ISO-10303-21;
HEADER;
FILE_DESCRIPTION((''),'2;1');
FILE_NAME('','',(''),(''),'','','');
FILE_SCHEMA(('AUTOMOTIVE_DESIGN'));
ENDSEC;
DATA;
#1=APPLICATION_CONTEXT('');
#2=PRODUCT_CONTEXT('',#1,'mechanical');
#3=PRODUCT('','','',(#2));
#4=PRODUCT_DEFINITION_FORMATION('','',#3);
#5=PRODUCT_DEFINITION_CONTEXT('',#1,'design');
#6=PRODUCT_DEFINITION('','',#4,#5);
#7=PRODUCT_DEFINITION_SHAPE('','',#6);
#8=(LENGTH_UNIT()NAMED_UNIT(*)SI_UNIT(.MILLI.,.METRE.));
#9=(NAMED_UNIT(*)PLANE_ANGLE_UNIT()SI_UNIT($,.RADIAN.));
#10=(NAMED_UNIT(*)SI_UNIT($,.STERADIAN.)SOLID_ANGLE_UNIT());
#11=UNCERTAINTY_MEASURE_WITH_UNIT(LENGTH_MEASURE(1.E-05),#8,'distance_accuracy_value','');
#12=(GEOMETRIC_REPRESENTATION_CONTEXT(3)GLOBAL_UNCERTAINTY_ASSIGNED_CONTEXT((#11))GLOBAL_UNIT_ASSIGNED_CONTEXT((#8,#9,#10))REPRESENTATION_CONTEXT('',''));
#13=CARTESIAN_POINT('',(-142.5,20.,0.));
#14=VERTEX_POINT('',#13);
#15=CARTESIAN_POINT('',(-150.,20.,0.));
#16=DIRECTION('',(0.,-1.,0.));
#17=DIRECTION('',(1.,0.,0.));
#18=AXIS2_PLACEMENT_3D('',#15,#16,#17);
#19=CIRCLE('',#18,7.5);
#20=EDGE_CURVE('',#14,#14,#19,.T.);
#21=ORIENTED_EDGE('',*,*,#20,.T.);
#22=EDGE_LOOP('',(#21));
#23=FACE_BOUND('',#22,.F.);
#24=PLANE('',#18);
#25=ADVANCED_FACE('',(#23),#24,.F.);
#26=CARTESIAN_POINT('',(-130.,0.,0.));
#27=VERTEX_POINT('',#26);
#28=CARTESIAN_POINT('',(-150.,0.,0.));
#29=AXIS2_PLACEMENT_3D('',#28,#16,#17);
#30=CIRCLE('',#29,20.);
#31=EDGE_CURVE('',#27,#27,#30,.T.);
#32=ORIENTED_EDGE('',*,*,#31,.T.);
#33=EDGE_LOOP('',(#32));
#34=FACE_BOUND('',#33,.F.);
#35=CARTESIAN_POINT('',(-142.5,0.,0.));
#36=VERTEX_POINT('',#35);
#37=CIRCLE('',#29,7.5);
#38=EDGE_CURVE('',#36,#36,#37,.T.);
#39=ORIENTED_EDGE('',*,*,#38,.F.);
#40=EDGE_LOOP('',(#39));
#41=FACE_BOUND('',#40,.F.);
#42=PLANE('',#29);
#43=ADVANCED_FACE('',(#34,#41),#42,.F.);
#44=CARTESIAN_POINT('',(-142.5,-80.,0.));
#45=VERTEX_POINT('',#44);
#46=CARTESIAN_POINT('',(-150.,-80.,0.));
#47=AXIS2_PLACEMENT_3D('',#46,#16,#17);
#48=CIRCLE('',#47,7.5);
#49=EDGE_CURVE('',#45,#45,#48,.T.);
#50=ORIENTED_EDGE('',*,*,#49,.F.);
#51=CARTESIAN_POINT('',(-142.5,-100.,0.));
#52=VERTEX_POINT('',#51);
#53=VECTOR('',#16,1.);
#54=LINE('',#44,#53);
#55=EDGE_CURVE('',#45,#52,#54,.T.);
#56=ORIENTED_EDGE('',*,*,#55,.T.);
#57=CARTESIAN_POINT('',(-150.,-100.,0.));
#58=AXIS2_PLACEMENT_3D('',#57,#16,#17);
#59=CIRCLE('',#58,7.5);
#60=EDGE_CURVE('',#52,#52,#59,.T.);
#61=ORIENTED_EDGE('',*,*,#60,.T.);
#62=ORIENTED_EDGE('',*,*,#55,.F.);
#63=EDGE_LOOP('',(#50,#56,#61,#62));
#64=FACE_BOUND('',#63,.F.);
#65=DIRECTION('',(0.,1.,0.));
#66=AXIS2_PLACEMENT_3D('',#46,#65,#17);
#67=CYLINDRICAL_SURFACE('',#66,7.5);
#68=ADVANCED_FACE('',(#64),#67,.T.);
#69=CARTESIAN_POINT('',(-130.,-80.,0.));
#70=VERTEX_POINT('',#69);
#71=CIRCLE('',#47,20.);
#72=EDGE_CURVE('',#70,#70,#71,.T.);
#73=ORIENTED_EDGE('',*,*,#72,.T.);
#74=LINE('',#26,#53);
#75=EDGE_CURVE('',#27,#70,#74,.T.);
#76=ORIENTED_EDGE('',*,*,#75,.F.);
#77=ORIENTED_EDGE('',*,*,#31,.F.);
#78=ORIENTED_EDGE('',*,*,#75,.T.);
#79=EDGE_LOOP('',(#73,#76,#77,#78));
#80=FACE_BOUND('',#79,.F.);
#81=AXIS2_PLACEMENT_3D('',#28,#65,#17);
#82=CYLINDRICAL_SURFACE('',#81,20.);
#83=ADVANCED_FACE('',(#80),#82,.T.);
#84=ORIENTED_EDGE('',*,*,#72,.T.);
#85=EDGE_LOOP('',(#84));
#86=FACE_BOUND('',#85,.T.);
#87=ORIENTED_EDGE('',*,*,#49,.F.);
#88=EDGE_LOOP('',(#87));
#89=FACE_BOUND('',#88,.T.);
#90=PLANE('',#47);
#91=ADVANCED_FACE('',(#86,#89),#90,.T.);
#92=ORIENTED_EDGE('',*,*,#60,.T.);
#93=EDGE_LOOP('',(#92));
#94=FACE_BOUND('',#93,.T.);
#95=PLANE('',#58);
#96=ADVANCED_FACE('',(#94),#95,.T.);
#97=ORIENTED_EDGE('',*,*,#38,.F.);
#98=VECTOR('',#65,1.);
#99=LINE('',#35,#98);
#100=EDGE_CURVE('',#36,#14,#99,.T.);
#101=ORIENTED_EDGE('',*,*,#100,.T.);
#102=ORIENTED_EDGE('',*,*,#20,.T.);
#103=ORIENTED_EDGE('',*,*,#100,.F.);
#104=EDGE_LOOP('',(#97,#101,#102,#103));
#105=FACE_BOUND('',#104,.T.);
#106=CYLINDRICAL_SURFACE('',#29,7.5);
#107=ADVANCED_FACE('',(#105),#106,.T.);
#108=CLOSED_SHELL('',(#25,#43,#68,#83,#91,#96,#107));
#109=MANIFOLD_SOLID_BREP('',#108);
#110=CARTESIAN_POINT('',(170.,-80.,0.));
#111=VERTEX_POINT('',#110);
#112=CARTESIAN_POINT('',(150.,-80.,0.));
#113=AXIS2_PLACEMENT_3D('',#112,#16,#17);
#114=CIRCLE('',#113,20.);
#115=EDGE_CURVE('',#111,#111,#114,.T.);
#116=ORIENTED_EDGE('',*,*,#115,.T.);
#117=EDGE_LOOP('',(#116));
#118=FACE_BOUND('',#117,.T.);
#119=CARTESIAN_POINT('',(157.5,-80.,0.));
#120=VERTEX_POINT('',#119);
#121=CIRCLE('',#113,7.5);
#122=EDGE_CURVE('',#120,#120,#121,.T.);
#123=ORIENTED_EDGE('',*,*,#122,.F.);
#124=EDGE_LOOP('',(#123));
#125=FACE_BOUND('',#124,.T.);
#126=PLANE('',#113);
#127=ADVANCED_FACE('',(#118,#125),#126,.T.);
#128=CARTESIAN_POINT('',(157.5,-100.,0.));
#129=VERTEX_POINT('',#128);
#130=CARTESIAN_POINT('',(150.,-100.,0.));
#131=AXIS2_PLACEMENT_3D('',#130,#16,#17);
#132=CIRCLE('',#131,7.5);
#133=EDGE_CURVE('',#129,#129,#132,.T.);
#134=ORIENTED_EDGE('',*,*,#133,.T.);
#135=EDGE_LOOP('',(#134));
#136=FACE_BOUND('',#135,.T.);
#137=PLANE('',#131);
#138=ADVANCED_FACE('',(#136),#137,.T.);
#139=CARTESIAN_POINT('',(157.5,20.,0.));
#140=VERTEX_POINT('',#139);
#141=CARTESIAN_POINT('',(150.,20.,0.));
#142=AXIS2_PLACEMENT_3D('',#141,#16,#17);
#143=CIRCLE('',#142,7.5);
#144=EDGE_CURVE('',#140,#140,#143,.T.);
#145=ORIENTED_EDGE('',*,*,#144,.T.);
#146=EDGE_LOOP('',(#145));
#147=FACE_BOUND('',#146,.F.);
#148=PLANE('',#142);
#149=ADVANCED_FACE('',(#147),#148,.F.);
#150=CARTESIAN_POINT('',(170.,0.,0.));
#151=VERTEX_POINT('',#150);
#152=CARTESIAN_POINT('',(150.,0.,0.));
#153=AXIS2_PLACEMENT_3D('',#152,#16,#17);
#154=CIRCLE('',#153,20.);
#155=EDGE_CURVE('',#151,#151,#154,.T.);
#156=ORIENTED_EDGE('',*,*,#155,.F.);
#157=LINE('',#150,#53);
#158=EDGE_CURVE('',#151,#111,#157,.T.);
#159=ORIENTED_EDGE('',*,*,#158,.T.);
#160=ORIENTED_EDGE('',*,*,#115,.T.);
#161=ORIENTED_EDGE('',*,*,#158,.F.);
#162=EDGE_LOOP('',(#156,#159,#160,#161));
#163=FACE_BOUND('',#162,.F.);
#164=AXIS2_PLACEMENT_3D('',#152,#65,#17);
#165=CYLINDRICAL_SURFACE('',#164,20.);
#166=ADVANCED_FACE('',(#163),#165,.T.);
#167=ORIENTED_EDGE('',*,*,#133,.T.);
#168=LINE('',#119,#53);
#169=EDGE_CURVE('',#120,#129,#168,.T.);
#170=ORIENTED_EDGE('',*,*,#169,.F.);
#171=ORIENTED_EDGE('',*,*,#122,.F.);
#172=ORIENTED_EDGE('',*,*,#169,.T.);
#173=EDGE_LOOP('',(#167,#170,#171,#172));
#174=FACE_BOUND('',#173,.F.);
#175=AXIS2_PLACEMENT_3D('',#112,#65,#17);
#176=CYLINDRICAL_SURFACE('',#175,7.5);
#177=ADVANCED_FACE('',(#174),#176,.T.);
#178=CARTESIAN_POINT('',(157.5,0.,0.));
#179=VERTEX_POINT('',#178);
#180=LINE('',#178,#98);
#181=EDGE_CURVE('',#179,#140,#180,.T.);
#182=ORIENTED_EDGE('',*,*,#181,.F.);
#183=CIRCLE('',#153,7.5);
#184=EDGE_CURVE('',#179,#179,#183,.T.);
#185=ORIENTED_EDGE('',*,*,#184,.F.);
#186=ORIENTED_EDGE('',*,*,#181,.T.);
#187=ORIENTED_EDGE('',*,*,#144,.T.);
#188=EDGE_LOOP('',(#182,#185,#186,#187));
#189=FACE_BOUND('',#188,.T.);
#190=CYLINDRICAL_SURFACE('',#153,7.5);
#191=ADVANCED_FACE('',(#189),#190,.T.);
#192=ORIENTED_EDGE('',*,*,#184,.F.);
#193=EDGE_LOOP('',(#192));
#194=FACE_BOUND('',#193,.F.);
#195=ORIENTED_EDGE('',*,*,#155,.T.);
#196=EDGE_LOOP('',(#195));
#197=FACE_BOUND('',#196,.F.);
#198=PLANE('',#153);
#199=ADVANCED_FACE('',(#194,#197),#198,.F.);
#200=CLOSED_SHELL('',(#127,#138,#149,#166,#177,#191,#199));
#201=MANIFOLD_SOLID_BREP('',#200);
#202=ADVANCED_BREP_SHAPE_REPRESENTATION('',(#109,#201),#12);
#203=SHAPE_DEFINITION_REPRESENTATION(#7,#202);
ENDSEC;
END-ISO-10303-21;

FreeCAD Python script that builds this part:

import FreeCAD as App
import Part
import Sketcher
Q = App.Units.Quantity

doc = App.newDocument("Part")
body = doc.addObject("PartDesign::Body", "Body")

# Sketch on XZ plane
sketch1 = doc.addObject("Sketcher::SketchObject", "Sketch")
body.addObject(sketch1)
sketch1.AttachmentSupport = (doc.XZ_Plane, [""])
sketch1.MapMode = "FlatFace"
sketch1.addGeometry(Part.Circle(App.Vector(-150, 0, 0), App.Vector(0, 0, 1), 20), False)
sketch1.addConstraint([
    Sketcher.Constraint("PointOnObject", 0, 3, -1),
    Sketcher.Constraint("Diameter", 0, Q("40 mm")),
    Sketcher.Constraint("DistanceX", 0, 3, -1, 1, Q("150 mm")),
])
pad1 = doc.addObject("PartDesign::Pad", "Pad")
body.addObject(pad1)
pad1.Profile = sketch1
pad1.Length = 80

# Sketch on XZ plane
sketch2 = doc.addObject("Sketcher::SketchObject", "Sketch001")
body.addObject(sketch2)
sketch2.AttachmentSupport = (doc.XZ_Plane, [""])
sketch2.MapMode = "FlatFace"
sketch2.AttachmentOffset = App.Placement(App.Vector(0, 0, 80), App.Rotation())
sketch2.addGeometry(Part.Circle(App.Vector(-150, 0, 0), App.Vector(0, 0, 1), 8), False)
sketch2.addConstraint([
    Sketcher.Constraint("PointOnObject", 0, 3, -1),
    Sketcher.Constraint("Diameter", 0, Q("15 mm")),
    Sketcher.Constraint("DistanceX", 0, 3, -1, 1, Q("150 mm")),
])
pad2 = doc.addObject("PartDesign::Pad", "Pad001")
body.addObject(pad2)
pad2.Profile = sketch2
pad2.Length = 20

# Sketch on XZ plane
sketch3 = doc.addObject("Sketcher::SketchObject", "Sketch002")
body.addObject(sketch3)
sketch3.AttachmentSupport = (doc.XZ_Plane, [""])
sketch3.MapMode = "FlatFace"
sketch3.addGeometry(Part.Circle(App.Vector(-150, 0, 0), App.Vector(0, 0, 1), 8), False)
sketch3.addConstraint([
    Sketcher.Constraint("PointOnObject", 0, 3, -1),
    Sketcher.Constraint("Diameter", 0, Q("15 mm")),
    Sketcher.Constraint("DistanceX", 0, 3, -1, 1, Q("150 mm")),
])
pad3 = doc.addObject("PartDesign::Pad", "Pad002")
body.addObject(pad3)
pad3.Profile = sketch3
pad3.Length = 20
pad3.Reversed = True
body2 = doc.addObject("PartDesign::Body", "Body001")

# Sketch on XZ plane
sketch4 = doc.addObject("Sketcher::SketchObject", "Sketch003")
body2.addObject(sketch4)
sketch4.AttachmentSupport = (doc.getObject("XZ_Plane001"), [""])
sketch4.MapMode = "FlatFace"
sketch4.addGeometry(Part.Circle(App.Vector(150, 0, 0), App.Vector(0, 0, 1), 20), False)
sketch4.addConstraint([
    Sketcher.Constraint("PointOnObject", 0, 3, -1),
    Sketcher.Constraint("Diameter", 0, Q("40 mm")),
    Sketcher.Constraint("DistanceX", -1, 1, 0, 3, Q("150 mm")),
])
pad4 = doc.addObject("PartDesign::Pad", "Pad003")
body2.addObject(pad4)
pad4.Profile = sketch4
pad4.Length = 80

# Sketch on XZ plane
sketch5 = doc.addObject("Sketcher::SketchObject", "Sketch004")
body2.addObject(sketch5)
sketch5.AttachmentSupport = (doc.getObject("XZ_Plane001"), [""])
sketch5.MapMode = "FlatFace"
sketch5.AttachmentOffset = App.Placement(App.Vector(0, 0, 80), App.Rotation())
sketch5.addGeometry(Part.Circle(App.Vector(150, 0, 0), App.Vector(0, 0, 1), 8), False)
sketch5.addConstraint([
    Sketcher.Constraint("PointOnObject", 0, 3, -1),
    Sketcher.Constraint("Diameter", 0, Q("15 mm")),
    Sketcher.Constraint("DistanceX", -1, 1, 0, 3, Q("150 mm")),
])
pad5 = doc.addObject("PartDesign::Pad", "Pad004")
body2.addObject(pad5)
pad5.Profile = sketch5
pad5.Length = 20

# Sketch on XZ plane
sketch6 = doc.addObject("Sketcher::SketchObject", "Sketch005")
body2.addObject(sketch6)
sketch6.AttachmentSupport = (doc.getObject("XZ_Plane001"), [""])
sketch6.MapMode = "FlatFace"
sketch6.addGeometry(Part.Circle(App.Vector(150, 0, 0), App.Vector(0, 0, 1), 8), False)
sketch6.addConstraint([
    Sketcher.Constraint("PointOnObject", 0, 3, -1),
    Sketcher.Constraint("Diameter", 0, Q("15 mm")),
    Sketcher.Constraint("DistanceX", -1, 1, 0, 3, Q("150 mm")),
])
pad6 = doc.addObject("PartDesign::Pad", "Pad005")
body2.addObject(pad6)
pad6.Profile = sketch6
pad6.Length = 20
pad6.Reversed = True

doc.recompute()
